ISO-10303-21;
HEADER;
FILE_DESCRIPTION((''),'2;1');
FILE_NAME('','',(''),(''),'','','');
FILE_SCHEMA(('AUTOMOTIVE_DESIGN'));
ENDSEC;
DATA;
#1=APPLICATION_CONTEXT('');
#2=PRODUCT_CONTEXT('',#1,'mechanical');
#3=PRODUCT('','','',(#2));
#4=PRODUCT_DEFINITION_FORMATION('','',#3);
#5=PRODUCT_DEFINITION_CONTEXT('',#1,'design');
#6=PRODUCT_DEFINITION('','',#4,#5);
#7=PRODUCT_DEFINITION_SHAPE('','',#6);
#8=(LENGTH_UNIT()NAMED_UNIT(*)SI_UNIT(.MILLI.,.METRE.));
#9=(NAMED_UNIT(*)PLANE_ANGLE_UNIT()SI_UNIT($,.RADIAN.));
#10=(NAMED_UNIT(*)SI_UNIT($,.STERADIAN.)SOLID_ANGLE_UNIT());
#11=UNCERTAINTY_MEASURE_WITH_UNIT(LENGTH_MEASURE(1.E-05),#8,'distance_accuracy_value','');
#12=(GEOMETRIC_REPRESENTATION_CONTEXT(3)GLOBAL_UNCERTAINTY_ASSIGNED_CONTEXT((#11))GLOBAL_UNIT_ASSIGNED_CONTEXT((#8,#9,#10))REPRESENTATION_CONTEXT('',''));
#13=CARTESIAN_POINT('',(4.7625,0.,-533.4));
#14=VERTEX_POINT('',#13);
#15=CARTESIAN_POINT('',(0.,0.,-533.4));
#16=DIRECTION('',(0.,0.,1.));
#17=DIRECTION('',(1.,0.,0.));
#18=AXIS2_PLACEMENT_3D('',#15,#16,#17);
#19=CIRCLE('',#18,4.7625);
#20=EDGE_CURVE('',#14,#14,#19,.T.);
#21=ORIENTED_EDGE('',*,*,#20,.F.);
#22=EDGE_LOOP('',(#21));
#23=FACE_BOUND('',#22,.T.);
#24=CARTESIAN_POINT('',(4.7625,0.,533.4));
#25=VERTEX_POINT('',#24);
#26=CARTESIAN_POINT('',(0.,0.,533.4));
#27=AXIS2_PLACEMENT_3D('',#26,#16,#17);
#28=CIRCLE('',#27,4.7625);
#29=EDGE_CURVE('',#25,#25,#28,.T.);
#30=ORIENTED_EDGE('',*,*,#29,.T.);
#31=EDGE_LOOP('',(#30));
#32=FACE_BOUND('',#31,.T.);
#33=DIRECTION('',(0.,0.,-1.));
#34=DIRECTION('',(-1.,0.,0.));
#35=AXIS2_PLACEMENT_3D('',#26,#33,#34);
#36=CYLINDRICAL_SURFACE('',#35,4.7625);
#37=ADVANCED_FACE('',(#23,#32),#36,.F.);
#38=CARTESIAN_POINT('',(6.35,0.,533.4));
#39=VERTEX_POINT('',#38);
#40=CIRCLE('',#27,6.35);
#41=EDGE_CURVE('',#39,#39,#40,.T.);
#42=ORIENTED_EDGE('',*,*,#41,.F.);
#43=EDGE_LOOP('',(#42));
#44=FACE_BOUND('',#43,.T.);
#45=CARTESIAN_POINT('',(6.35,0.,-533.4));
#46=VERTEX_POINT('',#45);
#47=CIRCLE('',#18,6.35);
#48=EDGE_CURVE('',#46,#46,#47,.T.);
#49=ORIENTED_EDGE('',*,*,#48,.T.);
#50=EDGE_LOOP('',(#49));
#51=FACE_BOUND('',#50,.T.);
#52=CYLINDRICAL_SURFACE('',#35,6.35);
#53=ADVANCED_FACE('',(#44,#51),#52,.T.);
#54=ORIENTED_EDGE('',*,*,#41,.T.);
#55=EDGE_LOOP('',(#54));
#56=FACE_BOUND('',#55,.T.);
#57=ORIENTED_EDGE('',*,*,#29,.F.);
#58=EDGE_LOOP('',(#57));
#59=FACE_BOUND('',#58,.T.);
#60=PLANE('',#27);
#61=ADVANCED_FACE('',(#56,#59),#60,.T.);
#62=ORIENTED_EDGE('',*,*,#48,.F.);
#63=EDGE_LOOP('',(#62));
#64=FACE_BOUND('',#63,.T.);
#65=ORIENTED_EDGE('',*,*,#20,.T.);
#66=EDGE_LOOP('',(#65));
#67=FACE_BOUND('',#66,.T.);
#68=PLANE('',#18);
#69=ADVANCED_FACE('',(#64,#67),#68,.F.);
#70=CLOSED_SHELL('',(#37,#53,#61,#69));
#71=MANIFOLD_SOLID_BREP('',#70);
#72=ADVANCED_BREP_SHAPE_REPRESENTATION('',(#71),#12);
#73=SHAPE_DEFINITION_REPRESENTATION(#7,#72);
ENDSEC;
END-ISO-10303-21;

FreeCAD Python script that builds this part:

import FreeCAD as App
import Part
import Sketcher

V = App.Vector
Q = App.Units.Quantity

doc = App.newDocument("Part")
body = doc.addObject("PartDesign::Body", "Body")

# Sketch on XY plane
sketch1 = body.newObject("Sketcher::SketchObject", "Sketch")
sketch1.AttachmentSupport = (doc.getObject("XY_Plane"), [""])
sketch1.MapMode = "FlatFace"
sketch1.addGeometry(Part.Circle(V(0, 0, 0), V(0, 0, 1), 6.3), False)
sketch1.addGeometry(Part.Circle(V(0, 0, 0), V(0, 0, 1), 4.8), False)
sketch1.addConstraint(Sketcher.Constraint("Coincident", 0, 3, -1, 1))
sketch1.addConstraint(Sketcher.Constraint("Coincident", 1, 3, -1, 1))
sketch1.addConstraint(Sketcher.Constraint("Diameter", 0, Q("0.5 in")))
sketch1.addConstraint(Sketcher.Constraint("Diameter", 1, Q("0.375 in")))
pad1 = body.newObject("PartDesign::Pad", "Pad")
pad1.Profile = sketch1
pad1.Length = Q("42 in")
pad1.Midplane = True

doc.recompute()
